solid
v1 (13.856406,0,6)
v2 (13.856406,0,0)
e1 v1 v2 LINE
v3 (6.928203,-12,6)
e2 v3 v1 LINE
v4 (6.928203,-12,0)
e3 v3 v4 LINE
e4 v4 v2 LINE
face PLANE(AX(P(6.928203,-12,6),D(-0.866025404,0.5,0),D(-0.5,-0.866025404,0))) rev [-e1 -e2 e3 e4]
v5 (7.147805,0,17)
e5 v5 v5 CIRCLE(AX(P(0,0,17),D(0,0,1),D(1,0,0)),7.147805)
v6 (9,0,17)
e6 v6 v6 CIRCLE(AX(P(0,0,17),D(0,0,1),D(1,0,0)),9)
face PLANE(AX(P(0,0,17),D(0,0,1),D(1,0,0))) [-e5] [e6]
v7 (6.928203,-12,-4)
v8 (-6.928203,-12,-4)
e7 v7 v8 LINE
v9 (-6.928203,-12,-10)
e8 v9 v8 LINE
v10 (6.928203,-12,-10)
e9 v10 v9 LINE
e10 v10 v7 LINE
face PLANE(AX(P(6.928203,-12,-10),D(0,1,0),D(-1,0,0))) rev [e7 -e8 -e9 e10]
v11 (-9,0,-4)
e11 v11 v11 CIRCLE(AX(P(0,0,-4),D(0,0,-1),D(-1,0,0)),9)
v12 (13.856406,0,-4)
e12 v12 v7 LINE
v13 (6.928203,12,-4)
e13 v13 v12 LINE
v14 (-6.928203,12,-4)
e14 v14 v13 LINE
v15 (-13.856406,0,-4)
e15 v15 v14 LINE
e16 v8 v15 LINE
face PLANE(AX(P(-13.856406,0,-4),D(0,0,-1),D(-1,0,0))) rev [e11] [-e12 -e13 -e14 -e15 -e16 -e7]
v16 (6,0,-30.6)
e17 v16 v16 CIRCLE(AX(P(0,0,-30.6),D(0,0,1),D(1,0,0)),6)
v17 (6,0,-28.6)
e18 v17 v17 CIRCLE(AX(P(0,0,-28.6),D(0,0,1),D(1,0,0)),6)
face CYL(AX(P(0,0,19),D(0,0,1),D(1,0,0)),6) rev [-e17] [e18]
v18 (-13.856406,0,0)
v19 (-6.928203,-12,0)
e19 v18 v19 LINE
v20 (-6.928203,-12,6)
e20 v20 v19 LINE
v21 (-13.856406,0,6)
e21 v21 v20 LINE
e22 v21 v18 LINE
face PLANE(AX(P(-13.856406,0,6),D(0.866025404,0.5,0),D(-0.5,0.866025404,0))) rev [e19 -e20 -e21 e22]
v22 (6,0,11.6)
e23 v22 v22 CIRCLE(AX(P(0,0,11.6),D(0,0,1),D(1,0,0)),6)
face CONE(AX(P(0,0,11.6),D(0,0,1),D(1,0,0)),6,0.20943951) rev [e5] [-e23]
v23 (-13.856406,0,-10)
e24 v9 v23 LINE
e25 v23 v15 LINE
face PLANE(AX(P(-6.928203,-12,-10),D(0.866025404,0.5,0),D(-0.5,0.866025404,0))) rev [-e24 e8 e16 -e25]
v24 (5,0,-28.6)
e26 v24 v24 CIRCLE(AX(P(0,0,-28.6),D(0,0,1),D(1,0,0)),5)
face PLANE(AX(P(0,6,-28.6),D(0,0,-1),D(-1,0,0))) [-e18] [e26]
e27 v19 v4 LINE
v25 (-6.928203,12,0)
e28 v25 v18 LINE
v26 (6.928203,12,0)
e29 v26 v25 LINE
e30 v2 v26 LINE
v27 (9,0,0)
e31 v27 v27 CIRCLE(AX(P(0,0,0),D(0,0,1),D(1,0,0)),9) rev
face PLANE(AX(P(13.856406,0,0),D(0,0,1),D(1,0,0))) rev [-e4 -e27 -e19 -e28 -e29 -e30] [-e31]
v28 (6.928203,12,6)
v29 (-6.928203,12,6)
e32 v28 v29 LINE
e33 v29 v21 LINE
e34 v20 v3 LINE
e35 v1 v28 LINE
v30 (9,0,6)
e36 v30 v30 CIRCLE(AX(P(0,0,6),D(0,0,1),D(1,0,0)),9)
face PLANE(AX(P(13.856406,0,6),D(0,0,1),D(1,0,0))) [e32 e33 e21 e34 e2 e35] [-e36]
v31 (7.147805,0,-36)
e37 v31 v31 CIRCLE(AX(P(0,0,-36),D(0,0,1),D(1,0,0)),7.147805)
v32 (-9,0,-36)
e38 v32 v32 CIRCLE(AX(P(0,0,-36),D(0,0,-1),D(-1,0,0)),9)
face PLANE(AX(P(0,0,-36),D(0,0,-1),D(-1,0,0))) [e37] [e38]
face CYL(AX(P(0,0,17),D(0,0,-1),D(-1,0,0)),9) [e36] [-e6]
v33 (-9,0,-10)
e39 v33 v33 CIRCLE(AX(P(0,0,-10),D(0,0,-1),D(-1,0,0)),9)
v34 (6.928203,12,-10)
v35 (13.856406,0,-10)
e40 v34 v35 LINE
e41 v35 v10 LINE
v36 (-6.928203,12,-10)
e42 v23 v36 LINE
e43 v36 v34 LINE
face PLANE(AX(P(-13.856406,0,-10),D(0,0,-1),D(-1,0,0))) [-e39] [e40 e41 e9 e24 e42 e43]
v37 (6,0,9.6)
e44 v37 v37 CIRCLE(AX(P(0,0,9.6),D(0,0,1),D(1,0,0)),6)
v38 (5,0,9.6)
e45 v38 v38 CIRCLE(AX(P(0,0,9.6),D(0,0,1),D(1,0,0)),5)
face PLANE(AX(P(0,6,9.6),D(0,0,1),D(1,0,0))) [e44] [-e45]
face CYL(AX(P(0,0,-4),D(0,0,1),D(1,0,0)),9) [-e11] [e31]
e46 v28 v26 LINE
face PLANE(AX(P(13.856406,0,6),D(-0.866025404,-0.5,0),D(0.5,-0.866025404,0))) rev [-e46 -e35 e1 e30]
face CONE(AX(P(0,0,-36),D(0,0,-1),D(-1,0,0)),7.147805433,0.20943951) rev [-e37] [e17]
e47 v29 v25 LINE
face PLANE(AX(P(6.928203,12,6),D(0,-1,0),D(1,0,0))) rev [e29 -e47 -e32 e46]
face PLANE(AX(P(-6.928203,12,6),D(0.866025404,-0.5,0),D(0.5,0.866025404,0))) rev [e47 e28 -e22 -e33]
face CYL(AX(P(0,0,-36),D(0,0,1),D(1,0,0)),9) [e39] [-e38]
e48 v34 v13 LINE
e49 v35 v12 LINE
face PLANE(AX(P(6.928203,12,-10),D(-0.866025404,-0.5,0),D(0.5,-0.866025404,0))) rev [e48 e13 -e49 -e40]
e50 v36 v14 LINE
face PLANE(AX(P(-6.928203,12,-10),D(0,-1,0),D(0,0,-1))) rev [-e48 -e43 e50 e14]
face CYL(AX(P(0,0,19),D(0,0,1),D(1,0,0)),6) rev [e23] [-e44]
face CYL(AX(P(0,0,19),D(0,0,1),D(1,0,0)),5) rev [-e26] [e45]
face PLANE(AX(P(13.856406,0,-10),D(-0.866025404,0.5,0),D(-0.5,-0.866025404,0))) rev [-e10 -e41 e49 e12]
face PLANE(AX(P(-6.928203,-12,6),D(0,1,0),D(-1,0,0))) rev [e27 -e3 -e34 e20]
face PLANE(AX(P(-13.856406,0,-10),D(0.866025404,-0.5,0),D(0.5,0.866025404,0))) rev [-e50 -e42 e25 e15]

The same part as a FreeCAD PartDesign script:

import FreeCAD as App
import Part
import Sketcher
Q = App.Units.Quantity


def add_polygon(sketch, points):
    """Adds a closed chain of lines whose ends are joined by coincident constraints."""
    first, n = sketch.GeometryCount, len(points)
    for a, b in zip(points, points[1:] + points[:1]):
        sketch.addGeometry(Part.LineSegment(App.Vector(*a, 0), App.Vector(*b, 0)), False)
    for i in range(n):
        sketch.addConstraint(Sketcher.Constraint("Coincident", first + i, 2, first + (i + 1) % n, 1))

doc = App.newDocument("Part")
body = doc.addObject("PartDesign::Body", "Body")

sketch1 = body.newObject("Sketcher::SketchObject", "Sketch")
sketch1.AttachmentSupport = (doc.getObject("XY_Plane"), [""])
sketch1.MapMode = "FlatFace"
add_polygon(sketch1, [(13.856406, 0), (6.928203, 12), (-6.928203, 12), (-13.856406, 0), (-6.928203, -12), (6.928203, -12)])
sketch1.addConstraint([
    Sketcher.Constraint("Horizontal", 1),
    Sketcher.Constraint("Horizontal", 4),
    Sketcher.Constraint("Symmetric", 0, 2, 3, 2, -1, 1),
    Sketcher.Constraint("Symmetric", 2, 2, 5, 2, -1, 1),
    Sketcher.Constraint("PointOnObject", 2, 2, -1),
    Sketcher.Constraint("Parallel", 2, 5),
    Sketcher.Constraint("Vertical", 1, 2, 3, 2),
    Sketcher.Constraint("Angle", 0, Q("120 deg")),
    Sketcher.Constraint("DistanceY", -1, 1, 0, 2, Q("12 mm")),
    Sketcher.Constraint("DistanceX", 1, 2, 1, 1, Q("13.856406 mm")),
])
pad1 = body.newObject("PartDesign::Pad", "Pad")
pad1.Profile = sketch1
pad1.Length = 6

sketch2 = body.newObject("Sketcher::SketchObject", "Sketch001")
sketch2.AttachmentSupport = (doc.getObject("XY_Plane"), [""])
sketch2.MapMode = "FlatFace"
sketch2.AttachmentOffset = App.Placement(App.Vector(0, 0, 6), App.Rotation())
sketch2.addGeometry(Part.Circle(App.Vector(0, 0, 0), App.Vector(0, 0, 1), 9), False)
sketch2.addConstraint([
    Sketcher.Constraint("Coincident", 0, 3, -1, 1),
    Sketcher.Constraint("Diameter", 0, Q("18 mm")),
])
pad2 = body.newObject("PartDesign::Pad", "Pad001")
pad2.Profile = sketch2
pad2.Length = 11

sketch3 = body.newObject("Sketcher::SketchObject", "Sketch002")
sketch3.AttachmentSupport = (doc.getObject("XY_Plane"), [""])
sketch3.MapMode = "FlatFace"
sketch3.addGeometry(Part.Circle(App.Vector(0, 0, 0), App.Vector(0, 0, 1), 9), False)
sketch3.addConstraint([
    Sketcher.Constraint("Coincident", 0, 3, -1, 1),
    Sketcher.Constraint("Diameter", 0, Q("18 mm")),
])
pad3 = body.newObject("PartDesign::Pad", "Pad002")
pad3.Profile = sketch3
pad3.Length = 4
pad3.Reversed = True

sketch4 = body.newObject("Sketcher::SketchObject", "Sketch003")
sketch4.AttachmentSupport = (doc.getObject("XY_Plane"), [""])
sketch4.MapMode = "FlatFace"
sketch4.AttachmentOffset = App.Placement(App.Vector(0, 0, -4), App.Rotation())
add_polygon(sketch4, [(-13.856406, 0), (-6.928203, 12), (6.928203, 12), (13.856406, 0), (6.928203, -12), (-6.928203, -12)])
sketch4.addConstraint([
    Sketcher.Constraint("Horizontal", 1),
    Sketcher.Constraint("Horizontal", 4),
    Sketcher.Constraint("Symmetric", 0, 2, 3, 2, -1, 1),
    Sketcher.Constraint("Symmetric", 2, 2, 5, 2, -1, 1),
    Sketcher.Constraint("PointOnObject", 2, 2, -1),
    Sketcher.Constraint("Parallel", 2, 5),
    Sketcher.Constraint("Vertical", 1, 2, 3, 2),
    Sketcher.Constraint("Angle", 0, Q("60 deg")),
    Sketcher.Constraint("DistanceY", -1, 1, 0, 2, Q("12 mm")),
    Sketcher.Constraint("DistanceX", 1, 1, 1, 2, Q("13.856406 mm")),
])
pad4 = body.newObject("PartDesign::Pad", "Pad003")
pad4.Profile = sketch4
pad4.Length = 6
pad4.Reversed = True

sketch5 = body.newObject("Sketcher::SketchObject", "Sketch004")
sketch5.AttachmentSupport = (doc.getObject("XY_Plane"), [""])
sketch5.MapMode = "FlatFace"
sketch5.AttachmentOffset = App.Placement(App.Vector(0, 0, -10), App.Rotation())
sketch5.addGeometry(Part.Circle(App.Vector(0, 0, 0), App.Vector(0, 0, 1), 9), False)
sketch5.addConstraint([
    Sketcher.Constraint("Coincident", 0, 3, -1, 1),
    Sketcher.Constraint("Diameter", 0, Q("18 mm")),
])
pad5 = body.newObject("PartDesign::Pad", "Pad004")
pad5.Profile = sketch5
pad5.Length = 26
pad5.Reversed = True

sketch6 = body.newObject("Sketcher::SketchObject", "Sketch005")
sketch6.AttachmentSupport = (doc.getObject("YZ_Plane"), [""])
sketch6.MapMode = "FlatFace"
add_polygon(sketch6, [(0, -36), (7.147805, -36), (6, -30.6), (6, -28.6), (5, -28.6), (5, 9.6), (6, 9.6), (6, 11.6), (7.147805, 17), (0, 17)])
sketch6.addConstraint([
    Sketcher.Constraint("Horizontal", 0),
    Sketcher.Constraint("Vertical", 2),
    Sketcher.Constraint("Horizontal", 3),
    Sketcher.Constraint("Vertical", 4),
    Sketcher.Constraint("Horizontal", 5),
    Sketcher.Constraint("Vertical", 6),
    Sketcher.Constraint("Horizontal", 8),
    Sketcher.Constraint("Vertical", 9),
    Sketcher.Constraint("PointOnObject", 8, 2, -2),
    Sketcher.Constraint("Vertical", 2, 2, 5, 2),
    Sketcher.Constraint("Vertical", 0, 2, 7, 2),
    Sketcher.Constraint("Equal", 2, 6),
    Sketcher.Constraint("Equal", 1, 7),
    Sketcher.Constraint("DistanceX", 3, 2, 3, 1, Q("1 mm")),
    Sketcher.Constraint("DistanceY", 2, 1, 2, 2, Q("2 mm")),
    Sketcher.Constraint("DistanceY", 9, 2, 9, 1, Q("53 mm")),
    Sketcher.Constraint("Angle", 1, Q("102 deg")),
    Sketcher.Constraint("DistanceY", 4, 1, 4, 2, Q("38.2 mm")),
    Sketcher.Constraint("DistanceY", 0, 2, -1, 1, Q("36 mm")),
    Sketcher.Constraint("DistanceX", -1, 1, 1, 2, Q("6 mm")),
])
groove = body.newObject("PartDesign::Groove", "Groove")
groove.Profile = sketch6
groove.ReferenceAxis = (sketch6, ["V_Axis"])
groove.Angle = 360

doc.recompute()
